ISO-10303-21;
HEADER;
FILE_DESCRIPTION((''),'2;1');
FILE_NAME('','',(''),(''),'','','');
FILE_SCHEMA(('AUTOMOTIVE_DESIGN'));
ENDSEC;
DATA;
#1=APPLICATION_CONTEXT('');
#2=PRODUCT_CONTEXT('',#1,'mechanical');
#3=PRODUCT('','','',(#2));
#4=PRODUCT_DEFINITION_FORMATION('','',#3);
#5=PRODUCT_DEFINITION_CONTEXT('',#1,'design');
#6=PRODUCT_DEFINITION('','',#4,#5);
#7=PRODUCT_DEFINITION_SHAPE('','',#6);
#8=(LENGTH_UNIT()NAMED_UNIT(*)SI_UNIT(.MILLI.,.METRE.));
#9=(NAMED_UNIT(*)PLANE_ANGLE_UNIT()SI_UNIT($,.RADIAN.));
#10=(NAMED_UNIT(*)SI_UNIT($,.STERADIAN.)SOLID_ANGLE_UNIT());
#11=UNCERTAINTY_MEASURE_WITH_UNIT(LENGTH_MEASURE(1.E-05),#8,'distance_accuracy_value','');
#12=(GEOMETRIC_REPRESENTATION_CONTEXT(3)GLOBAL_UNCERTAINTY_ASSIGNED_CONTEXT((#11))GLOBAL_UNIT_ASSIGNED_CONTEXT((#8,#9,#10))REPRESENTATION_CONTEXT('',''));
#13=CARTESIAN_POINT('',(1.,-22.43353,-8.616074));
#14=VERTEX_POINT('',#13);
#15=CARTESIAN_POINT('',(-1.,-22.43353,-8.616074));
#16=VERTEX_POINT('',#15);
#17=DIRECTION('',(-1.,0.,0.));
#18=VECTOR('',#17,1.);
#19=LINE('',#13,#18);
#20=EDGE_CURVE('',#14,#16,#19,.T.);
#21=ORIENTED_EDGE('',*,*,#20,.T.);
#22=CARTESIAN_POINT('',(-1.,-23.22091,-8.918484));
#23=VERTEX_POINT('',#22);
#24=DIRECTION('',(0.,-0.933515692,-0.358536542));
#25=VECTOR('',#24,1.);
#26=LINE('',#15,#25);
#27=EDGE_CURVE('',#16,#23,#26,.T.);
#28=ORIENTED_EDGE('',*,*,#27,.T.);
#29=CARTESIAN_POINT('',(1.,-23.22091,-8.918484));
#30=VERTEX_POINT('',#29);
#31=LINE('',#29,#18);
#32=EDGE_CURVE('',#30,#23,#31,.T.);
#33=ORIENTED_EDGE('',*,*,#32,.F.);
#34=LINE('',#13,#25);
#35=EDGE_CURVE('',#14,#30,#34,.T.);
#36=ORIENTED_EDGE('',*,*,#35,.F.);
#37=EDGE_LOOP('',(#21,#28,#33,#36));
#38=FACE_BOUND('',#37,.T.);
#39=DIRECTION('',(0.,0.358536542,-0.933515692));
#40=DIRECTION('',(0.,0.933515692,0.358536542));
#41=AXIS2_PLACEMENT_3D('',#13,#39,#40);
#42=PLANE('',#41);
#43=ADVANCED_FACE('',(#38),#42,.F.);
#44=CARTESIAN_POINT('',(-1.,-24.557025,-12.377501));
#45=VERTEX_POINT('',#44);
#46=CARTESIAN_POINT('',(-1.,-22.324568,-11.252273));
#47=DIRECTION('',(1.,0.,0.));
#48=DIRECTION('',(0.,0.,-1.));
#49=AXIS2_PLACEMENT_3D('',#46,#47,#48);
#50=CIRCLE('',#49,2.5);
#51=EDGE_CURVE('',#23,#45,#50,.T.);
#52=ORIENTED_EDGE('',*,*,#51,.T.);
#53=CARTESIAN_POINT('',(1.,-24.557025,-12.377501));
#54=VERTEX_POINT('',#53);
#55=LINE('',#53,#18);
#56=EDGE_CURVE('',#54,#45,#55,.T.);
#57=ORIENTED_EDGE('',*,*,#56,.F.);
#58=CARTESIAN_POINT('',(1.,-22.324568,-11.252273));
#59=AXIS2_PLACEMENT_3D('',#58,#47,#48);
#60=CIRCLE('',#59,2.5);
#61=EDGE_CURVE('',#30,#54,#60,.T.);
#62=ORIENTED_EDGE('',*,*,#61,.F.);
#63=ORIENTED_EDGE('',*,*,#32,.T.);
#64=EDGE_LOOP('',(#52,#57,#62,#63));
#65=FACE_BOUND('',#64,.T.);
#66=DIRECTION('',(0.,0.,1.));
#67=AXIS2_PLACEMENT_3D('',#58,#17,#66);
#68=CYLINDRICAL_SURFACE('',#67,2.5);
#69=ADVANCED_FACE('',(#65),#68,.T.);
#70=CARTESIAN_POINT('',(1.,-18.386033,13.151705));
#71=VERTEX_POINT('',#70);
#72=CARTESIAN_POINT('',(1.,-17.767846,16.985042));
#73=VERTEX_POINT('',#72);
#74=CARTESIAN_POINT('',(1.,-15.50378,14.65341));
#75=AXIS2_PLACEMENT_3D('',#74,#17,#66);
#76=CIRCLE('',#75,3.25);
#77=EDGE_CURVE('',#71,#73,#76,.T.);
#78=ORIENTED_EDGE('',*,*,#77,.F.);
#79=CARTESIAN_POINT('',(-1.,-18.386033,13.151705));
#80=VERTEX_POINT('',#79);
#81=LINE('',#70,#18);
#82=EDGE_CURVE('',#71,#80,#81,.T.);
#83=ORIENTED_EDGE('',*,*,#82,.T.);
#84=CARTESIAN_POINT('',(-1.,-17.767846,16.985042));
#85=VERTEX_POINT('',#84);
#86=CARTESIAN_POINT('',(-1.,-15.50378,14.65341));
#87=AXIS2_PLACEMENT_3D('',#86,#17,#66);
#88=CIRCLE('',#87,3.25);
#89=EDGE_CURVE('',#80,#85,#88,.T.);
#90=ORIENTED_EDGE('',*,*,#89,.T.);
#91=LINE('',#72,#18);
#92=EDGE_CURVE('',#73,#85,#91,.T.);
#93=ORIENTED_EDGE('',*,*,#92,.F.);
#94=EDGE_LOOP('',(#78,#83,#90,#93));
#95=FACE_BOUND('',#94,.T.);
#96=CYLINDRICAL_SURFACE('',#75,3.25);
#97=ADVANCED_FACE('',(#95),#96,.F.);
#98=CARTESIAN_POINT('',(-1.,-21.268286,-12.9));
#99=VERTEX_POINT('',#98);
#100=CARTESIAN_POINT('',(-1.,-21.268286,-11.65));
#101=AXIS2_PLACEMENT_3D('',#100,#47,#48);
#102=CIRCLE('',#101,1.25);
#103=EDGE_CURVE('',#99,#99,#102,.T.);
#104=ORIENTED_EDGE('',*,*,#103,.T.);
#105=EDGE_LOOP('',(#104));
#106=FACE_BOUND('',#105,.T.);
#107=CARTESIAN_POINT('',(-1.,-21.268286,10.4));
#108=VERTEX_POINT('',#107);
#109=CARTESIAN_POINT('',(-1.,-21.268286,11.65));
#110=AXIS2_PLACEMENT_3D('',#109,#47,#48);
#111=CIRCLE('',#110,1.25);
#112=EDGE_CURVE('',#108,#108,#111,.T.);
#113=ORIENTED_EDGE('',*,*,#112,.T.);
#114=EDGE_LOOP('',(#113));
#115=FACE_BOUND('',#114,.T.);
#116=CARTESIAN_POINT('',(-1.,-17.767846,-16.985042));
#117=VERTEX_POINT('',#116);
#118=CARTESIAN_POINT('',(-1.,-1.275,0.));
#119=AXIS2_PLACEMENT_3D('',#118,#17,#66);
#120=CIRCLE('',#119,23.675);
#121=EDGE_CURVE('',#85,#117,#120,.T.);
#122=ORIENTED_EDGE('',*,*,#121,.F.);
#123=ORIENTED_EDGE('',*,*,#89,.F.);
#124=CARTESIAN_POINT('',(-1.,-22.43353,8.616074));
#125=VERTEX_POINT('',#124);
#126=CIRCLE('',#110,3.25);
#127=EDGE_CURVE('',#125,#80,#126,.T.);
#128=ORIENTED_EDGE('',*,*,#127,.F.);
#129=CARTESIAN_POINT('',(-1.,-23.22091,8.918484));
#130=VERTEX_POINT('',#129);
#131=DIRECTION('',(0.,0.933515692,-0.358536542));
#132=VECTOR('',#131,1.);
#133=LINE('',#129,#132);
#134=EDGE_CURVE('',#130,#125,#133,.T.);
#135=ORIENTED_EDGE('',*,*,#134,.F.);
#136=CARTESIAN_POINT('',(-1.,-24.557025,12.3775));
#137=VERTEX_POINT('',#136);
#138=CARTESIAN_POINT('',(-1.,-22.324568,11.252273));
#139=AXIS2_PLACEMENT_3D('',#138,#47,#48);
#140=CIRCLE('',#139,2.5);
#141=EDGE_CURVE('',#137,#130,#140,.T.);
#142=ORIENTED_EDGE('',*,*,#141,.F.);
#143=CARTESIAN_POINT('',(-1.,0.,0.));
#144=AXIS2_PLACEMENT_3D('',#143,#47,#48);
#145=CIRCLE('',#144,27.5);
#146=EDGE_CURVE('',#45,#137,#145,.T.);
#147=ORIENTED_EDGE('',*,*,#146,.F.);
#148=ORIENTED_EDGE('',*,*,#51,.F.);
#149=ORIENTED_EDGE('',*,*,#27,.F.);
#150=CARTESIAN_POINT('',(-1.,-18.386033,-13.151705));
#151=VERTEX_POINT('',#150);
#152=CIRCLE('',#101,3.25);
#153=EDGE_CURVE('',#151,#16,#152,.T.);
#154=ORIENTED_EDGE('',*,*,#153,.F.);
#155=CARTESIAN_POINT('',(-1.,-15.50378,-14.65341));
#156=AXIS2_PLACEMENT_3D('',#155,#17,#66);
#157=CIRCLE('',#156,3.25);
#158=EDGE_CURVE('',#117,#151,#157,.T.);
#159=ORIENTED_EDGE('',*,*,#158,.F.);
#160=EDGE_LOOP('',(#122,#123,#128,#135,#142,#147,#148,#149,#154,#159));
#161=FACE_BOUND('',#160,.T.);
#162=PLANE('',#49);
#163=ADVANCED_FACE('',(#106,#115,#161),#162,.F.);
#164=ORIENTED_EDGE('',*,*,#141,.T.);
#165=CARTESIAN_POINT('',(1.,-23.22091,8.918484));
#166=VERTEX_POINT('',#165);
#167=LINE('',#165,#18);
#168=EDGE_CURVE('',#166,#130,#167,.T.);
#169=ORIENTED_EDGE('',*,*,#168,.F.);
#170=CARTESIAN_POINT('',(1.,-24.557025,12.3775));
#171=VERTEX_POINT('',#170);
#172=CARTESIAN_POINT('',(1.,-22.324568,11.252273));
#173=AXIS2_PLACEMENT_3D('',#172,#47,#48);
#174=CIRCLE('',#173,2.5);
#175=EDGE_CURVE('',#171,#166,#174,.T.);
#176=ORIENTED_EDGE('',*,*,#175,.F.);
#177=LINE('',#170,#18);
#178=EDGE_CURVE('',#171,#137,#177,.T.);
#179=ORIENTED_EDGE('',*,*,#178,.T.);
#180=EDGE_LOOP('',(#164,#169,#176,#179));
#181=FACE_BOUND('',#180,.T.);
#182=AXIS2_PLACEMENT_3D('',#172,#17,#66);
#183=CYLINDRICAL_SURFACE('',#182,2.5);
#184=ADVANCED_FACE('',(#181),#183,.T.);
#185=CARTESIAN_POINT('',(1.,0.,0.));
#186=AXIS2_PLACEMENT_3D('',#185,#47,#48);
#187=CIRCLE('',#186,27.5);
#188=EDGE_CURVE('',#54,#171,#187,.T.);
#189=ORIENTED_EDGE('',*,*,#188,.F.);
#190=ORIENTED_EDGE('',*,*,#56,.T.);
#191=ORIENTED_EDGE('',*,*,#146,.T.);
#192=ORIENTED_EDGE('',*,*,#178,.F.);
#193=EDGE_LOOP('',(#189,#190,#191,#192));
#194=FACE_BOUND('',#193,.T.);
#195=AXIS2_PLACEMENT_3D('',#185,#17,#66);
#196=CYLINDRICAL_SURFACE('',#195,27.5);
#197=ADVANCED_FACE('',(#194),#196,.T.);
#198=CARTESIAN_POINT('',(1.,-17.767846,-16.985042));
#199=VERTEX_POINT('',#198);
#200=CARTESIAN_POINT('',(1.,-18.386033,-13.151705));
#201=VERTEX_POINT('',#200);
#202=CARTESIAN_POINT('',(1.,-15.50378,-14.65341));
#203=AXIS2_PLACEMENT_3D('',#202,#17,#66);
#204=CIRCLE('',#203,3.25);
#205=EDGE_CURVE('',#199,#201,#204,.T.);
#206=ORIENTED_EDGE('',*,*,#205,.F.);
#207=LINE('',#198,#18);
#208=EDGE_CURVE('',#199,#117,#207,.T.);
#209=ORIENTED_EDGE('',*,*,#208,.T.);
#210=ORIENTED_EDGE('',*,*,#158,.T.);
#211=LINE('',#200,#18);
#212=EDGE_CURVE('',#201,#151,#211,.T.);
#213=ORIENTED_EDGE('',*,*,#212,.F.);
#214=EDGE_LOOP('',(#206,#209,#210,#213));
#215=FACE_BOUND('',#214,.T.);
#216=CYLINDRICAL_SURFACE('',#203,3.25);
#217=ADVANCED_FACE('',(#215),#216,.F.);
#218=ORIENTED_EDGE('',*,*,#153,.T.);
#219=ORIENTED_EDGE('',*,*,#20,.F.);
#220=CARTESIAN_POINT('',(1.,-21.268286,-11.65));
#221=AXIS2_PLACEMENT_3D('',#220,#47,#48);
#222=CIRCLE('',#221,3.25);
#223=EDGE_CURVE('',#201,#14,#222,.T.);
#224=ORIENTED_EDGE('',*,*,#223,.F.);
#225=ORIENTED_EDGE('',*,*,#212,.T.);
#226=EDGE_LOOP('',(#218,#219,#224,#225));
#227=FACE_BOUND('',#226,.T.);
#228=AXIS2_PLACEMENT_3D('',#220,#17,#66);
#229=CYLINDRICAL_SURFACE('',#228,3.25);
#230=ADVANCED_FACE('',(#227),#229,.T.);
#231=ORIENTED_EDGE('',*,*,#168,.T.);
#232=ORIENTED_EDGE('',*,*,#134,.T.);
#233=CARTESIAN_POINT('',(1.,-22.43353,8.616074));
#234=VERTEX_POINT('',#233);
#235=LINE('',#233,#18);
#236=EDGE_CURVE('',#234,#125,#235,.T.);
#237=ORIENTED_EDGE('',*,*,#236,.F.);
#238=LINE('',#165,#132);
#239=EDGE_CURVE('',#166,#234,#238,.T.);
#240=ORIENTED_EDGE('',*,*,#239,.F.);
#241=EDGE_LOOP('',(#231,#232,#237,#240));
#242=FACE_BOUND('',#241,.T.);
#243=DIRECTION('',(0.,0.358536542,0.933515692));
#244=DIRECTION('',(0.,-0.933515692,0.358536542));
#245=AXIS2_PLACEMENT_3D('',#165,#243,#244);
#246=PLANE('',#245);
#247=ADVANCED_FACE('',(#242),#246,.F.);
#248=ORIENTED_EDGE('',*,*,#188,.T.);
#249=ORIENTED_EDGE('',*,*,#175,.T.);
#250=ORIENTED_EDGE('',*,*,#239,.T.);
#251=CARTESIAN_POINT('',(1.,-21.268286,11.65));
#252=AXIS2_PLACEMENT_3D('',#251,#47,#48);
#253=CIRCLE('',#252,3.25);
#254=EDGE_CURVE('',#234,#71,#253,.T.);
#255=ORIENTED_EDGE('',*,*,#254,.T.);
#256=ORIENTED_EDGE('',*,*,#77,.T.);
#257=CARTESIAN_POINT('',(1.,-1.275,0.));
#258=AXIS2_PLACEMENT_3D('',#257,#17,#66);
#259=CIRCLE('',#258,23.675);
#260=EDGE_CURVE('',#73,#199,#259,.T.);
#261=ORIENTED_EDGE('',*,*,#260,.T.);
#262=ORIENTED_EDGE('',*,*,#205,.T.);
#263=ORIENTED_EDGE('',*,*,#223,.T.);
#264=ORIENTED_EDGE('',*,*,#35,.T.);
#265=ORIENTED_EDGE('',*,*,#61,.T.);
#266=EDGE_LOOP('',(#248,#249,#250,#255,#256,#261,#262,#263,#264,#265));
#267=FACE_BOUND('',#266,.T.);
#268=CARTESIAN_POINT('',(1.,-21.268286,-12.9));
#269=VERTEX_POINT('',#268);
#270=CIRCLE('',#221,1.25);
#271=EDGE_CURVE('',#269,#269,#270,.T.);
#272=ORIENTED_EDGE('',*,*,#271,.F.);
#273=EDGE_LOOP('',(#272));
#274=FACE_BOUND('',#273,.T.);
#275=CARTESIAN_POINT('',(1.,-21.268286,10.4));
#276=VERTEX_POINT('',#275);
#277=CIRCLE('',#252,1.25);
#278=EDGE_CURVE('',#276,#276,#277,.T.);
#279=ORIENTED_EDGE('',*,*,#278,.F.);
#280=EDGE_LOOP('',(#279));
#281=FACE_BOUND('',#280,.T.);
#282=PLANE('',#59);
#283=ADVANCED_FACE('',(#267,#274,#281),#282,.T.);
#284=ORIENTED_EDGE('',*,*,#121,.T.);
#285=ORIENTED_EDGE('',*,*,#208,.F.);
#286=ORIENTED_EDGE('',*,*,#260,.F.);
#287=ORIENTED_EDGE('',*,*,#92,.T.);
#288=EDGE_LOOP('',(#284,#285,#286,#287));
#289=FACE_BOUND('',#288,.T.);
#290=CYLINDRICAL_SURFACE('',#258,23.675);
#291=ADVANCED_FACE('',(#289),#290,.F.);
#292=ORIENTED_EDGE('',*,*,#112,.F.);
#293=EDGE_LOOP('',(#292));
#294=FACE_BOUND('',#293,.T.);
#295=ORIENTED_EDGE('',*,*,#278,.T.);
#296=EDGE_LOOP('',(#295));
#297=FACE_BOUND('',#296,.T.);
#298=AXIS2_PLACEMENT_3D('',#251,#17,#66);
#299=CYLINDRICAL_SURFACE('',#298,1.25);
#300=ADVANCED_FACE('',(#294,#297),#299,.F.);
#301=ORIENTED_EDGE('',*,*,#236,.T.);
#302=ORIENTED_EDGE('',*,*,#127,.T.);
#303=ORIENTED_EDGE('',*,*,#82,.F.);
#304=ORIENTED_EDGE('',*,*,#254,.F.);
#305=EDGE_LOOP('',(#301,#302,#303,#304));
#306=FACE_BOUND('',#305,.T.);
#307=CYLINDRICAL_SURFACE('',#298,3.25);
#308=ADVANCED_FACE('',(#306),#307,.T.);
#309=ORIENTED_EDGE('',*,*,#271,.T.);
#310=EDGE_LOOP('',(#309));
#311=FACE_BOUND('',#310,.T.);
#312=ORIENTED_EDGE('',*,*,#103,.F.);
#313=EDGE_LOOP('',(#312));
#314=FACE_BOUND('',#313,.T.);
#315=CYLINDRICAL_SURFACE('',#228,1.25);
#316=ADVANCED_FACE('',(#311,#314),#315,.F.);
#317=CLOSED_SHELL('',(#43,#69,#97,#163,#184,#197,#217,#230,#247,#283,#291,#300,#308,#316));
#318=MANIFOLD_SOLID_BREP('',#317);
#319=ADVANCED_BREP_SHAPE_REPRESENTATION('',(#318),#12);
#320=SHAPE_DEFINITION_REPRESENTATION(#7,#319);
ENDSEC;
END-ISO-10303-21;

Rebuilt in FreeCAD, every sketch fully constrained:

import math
import FreeCAD as App
import Part
import Sketcher

doc = App.newDocument("Part")
body = doc.addObject("PartDesign::Body", "Body")

# Sketch on YZ plane
sketch1 = doc.addObject("Sketcher::SketchObject", "Sketch")
body.addObject(sketch1)
sketch1.AttachmentSupport = (doc.YZ_Plane, [""])
sketch1.MapMode = "FlatFace"
sketch1.addGeometry([
    Part.LineSegment(App.Vector(-23.22091, 8.918484, 0), App.Vector(-22.43353, 8.616074, 0)),  # 0
    Part.ArcOfCircle(Part.Circle(App.Vector(-21.268286, 11.65, 0), App.Vector(0, 0, 1), 3.25), math.radians(-111.010347), math.radians(27.520318)),  # 1
    Part.ArcOfCircle(Part.Circle(App.Vector(-15.50378, 14.65341, 0), App.Vector(0, 0, 1), 3.25), math.radians(134.157692), math.radians(207.520315)),  # 2
    Part.ArcOfCircle(Part.Circle(App.Vector(-1.275, 0, 0), App.Vector(0, 0, 1), 23.675), math.radians(-134.15769), math.radians(134.157691)),  # 3
    Part.ArcOfCircle(Part.Circle(App.Vector(-15.50378, -14.65341, 0), App.Vector(0, 0, 1), 3.25), math.radians(152.479685), math.radians(225.842315)),  # 4
    Part.ArcOfCircle(Part.Circle(App.Vector(-21.268286, -11.65, 0), App.Vector(0, 0, 1), 3.25), math.radians(-27.520318), math.radians(111.010347)),  # 5
    Part.LineSegment(App.Vector(-22.43353, -8.616074, 0), App.Vector(-23.22091, -8.918484, 0)),  # 6
    Part.ArcOfCircle(Part.Circle(App.Vector(-22.324568, -11.252273, 0), App.Vector(0, 0, 1), 2.5), math.radians(111.010347), math.radians(206.749522)),  # 7
    Part.ArcOfCircle(Part.Circle(App.Vector(0, 0, 0), App.Vector(0, 0, 1), 27.5), math.radians(-153.250482), math.radians(153.250482)),  # 8
    Part.ArcOfCircle(Part.Circle(App.Vector(-22.324568, 11.252273, 0), App.Vector(0, 0, 1), 2.5), math.radians(153.250482), math.radians(248.989653)),  # 9
    Part.Circle(App.Vector(-21.268286, 11.65, 0), App.Vector(0, 0, 1), 1.25),  # 10
    Part.Circle(App.Vector(-21.268286, -11.65, 0), App.Vector(0, 0, 1), 1.25),  # 11
], False)
sketch1.addConstraint([
    Sketcher.Constraint("Tangent", 0, 2, 1, 1),
    Sketcher.Constraint("Tangent", 1, 2, 2, 2),
    Sketcher.Constraint("Tangent", 2, 1, 3, 2),
    Sketcher.Constraint("Tangent", 3, 1, 4, 2),
    Sketcher.Constraint("Tangent", 4, 1, 5, 1),
    Sketcher.Constraint("Tangent", 5, 2, 6, 1),
    Sketcher.Constraint("Tangent", 6, 2, 7, 1),
    Sketcher.Constraint("Tangent", 7, 2, 8, 1),
    Sketcher.Constraint("Tangent", 8, 2, 9, 1),
    Sketcher.Constraint("Tangent", 9, 2, 0, 1),
    Sketcher.Constraint("Coincident", 8, 3, -1, 1),
    Sketcher.Constraint("Coincident", 10, 3, 1, 3),
    Sketcher.Constraint("Coincident", 11, 3, 5, 3),
    Sketcher.Constraint("Equal", 1, 2),
    Sketcher.Constraint("Equal", 2, 4),
    Sketcher.Constraint("Equal", 4, 5),
    Sketcher.Constraint("Equal", 7, 9),
    Sketcher.Constraint("Equal", 10, 11),
    Sketcher.Constraint("Symmetric", 2, 3, 4, 3, -1),
    Sketcher.Constraint("Symmetric", 0, 2, 5, 2, -1),
    Sketcher.Constraint("Diameter", 10, 2.5),
    Sketcher.Constraint("Radius", 7, 2.5),
    Sketcher.Constraint("Radius", 8, 27.5),
    Sketcher.Constraint("Radius", 1, 3.25),
    Sketcher.Constraint("Radius", 3, 23.675),
    Sketcher.Constraint("DistanceY", 5, 3, 1, 3, 23.3),
    Sketcher.Constraint("DistanceX", 3, 3, -1, 1, 1.275),
    Sketcher.Constraint("DistanceY", 7, 2, -1, 1, 12.377501),
    Sketcher.Constraint("DistanceY", 0, 2, 9, 3, 2.636199),
])
pad1 = doc.addObject("PartDesign::Pad", "Pad")
body.addObject(pad1)
pad1.Profile = sketch1
pad1.Type = "TwoLengths"
pad1.Length = 1
pad1.Length2 = 1

doc.recompute()
